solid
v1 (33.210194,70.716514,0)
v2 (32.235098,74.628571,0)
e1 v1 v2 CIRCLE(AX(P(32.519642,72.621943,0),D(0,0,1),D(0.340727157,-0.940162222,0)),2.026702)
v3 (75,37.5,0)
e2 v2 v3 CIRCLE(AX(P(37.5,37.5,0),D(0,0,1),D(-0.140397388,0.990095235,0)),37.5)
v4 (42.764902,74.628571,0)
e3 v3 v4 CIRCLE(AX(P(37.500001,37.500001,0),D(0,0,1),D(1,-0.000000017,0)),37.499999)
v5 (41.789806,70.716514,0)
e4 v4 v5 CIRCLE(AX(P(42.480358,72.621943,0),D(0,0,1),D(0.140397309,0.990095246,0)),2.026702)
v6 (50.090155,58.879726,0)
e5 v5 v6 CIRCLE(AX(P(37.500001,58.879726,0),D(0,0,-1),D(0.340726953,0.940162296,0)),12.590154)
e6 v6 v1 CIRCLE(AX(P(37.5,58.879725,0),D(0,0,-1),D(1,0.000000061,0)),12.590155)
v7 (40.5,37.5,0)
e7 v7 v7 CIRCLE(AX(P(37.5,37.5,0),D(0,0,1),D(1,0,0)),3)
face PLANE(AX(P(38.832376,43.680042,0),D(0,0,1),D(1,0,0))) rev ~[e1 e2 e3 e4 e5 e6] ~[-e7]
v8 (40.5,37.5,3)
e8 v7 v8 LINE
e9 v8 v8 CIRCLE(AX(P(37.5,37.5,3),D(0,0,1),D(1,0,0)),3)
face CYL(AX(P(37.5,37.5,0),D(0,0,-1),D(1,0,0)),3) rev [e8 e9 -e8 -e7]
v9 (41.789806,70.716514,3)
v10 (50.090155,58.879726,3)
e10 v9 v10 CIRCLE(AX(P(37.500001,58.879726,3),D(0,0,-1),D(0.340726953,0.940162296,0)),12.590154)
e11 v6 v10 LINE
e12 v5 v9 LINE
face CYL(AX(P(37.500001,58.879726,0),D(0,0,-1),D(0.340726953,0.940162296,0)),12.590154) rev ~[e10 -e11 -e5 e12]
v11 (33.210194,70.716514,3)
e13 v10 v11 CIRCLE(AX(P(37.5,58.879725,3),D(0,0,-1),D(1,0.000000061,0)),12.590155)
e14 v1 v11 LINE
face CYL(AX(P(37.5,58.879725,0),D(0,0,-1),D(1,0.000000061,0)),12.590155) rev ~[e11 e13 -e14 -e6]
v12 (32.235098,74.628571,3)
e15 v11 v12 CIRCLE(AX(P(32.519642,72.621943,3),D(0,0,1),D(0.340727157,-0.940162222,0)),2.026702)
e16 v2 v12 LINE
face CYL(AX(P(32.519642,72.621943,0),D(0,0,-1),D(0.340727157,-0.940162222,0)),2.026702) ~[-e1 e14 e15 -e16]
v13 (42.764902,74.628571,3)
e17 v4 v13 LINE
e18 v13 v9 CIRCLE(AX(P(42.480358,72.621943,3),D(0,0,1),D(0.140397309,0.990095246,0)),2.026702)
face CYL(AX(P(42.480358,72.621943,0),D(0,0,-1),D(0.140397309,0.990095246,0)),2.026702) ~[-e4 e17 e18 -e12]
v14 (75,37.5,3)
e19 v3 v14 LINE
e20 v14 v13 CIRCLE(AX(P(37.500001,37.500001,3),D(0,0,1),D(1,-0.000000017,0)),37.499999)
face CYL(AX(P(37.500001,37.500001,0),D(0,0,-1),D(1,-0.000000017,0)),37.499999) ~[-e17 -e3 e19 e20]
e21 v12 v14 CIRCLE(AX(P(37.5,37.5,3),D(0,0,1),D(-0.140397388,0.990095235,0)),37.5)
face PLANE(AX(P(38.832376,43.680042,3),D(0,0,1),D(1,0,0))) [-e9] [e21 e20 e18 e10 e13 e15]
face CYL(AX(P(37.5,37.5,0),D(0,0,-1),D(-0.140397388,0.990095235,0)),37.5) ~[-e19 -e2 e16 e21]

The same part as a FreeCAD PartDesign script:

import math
import FreeCAD as App
import Part
import Sketcher

doc = App.newDocument("Part")
body = doc.addObject("PartDesign::Body", "Body")

# Sketch on XY plane
sketch1 = doc.addObject("Sketcher::SketchObject", "Sketch")
body.addObject(sketch1)
sketch1.AttachmentSupport = (doc.XY_Plane, [""])
sketch1.MapMode = "FlatFace"
sketch1.addGeometry(Part.ArcOfCircle(Part.Circle(App.Vector(37.5, 37.5, 0), App.Vector(0, 0, 1), 37.5), math.radians(98), math.radians(360)), False)
sketch1.addGeometry(Part.ArcOfCircle(Part.Circle(App.Vector(37.5, 37.5, 0), App.Vector(0, 0, 1), 37.5), math.radians(0), math.radians(82)), False)
sketch1.addGeometry(Part.ArcOfCircle(Part.Circle(App.Vector(42.5, 72.6, 0), App.Vector(0, 0, 1), 2), math.radians(82), math.radians(250)), False)
sketch1.addGeometry(Part.ArcOfCircle(Part.Circle(App.Vector(37.5, 58.9, 0), App.Vector(0, 0, 1), 12.6), math.radians(0), math.radians(70)), False)
sketch1.addGeometry(Part.ArcOfCircle(Part.Circle(App.Vector(37.5, 58.9, 0), App.Vector(0, 0, 1), 12.6), math.radians(110), math.radians(360)), False)
sketch1.addGeometry(Part.ArcOfCircle(Part.Circle(App.Vector(32.5, 72.6, 0), App.Vector(0, 0, 1), 2), math.radians(-70), math.radians(98)), False)
sketch1.addGeometry(Part.Circle(App.Vector(37.5, 37.5, 0), App.Vector(0, 0, 1), 3), False)
sketch1.addConstraint(Sketcher.Constraint("Tangent", 0, 2, 1, 1))
sketch1.addConstraint(Sketcher.Constraint("Tangent", 1, 2, 2, 1))
sketch1.addConstraint(Sketcher.Constraint("Tangent", 2, 2, 3, 2))
sketch1.addConstraint(Sketcher.Constraint("Tangent", 3, 1, 4, 2))
sketch1.addConstraint(Sketcher.Constraint("Tangent", 4, 1, 5, 1))
sketch1.addConstraint(Sketcher.Constraint("Tangent", 5, 2, 0, 1))
sketch1.addConstraint(Sketcher.Constraint("Coincident", 6, 3, 0, 3))
sketch1.addConstraint(Sketcher.Constraint("Equal", 0, 1))
sketch1.addConstraint(Sketcher.Constraint("Equal", 3, 4))
sketch1.addConstraint(Sketcher.Constraint("Equal", 2, 5))
sketch1.addConstraint(Sketcher.Constraint("Horizontal", 2, 3, 5, 3))
sketch1.addConstraint(Sketcher.Constraint("Horizontal", 6, 3, 0, 2))
sketch1.addConstraint(Sketcher.Constraint("Horizontal", 4, 3, 3, 1))
sketch1.addConstraint(Sketcher.Constraint("Diameter", 6, 6.0))
sketch1.addConstraint(Sketcher.Constraint("Radius", 0, 37.5))
sketch1.addConstraint(Sketcher.Constraint("DistanceX", -1, 1, 0, 2, 75.0))
sketch1.addConstraint(Sketcher.Constraint("DistanceY", -1, 1, 0, 3, 37.5))
sketch1.addConstraint(Sketcher.Constraint("Radius", 2, 2.026702))
sketch1.addConstraint(Sketcher.Constraint("Radius", 3, 12.590154))
sketch1.addConstraint(Sketcher.Constraint("DistanceX", -1, 1, 5, 2, 32.235098))
pad1 = doc.addObject("PartDesign::Pad", "Pad")
body.addObject(pad1)
pad1.Profile = sketch1
pad1.Length = 3

doc.recompute()
